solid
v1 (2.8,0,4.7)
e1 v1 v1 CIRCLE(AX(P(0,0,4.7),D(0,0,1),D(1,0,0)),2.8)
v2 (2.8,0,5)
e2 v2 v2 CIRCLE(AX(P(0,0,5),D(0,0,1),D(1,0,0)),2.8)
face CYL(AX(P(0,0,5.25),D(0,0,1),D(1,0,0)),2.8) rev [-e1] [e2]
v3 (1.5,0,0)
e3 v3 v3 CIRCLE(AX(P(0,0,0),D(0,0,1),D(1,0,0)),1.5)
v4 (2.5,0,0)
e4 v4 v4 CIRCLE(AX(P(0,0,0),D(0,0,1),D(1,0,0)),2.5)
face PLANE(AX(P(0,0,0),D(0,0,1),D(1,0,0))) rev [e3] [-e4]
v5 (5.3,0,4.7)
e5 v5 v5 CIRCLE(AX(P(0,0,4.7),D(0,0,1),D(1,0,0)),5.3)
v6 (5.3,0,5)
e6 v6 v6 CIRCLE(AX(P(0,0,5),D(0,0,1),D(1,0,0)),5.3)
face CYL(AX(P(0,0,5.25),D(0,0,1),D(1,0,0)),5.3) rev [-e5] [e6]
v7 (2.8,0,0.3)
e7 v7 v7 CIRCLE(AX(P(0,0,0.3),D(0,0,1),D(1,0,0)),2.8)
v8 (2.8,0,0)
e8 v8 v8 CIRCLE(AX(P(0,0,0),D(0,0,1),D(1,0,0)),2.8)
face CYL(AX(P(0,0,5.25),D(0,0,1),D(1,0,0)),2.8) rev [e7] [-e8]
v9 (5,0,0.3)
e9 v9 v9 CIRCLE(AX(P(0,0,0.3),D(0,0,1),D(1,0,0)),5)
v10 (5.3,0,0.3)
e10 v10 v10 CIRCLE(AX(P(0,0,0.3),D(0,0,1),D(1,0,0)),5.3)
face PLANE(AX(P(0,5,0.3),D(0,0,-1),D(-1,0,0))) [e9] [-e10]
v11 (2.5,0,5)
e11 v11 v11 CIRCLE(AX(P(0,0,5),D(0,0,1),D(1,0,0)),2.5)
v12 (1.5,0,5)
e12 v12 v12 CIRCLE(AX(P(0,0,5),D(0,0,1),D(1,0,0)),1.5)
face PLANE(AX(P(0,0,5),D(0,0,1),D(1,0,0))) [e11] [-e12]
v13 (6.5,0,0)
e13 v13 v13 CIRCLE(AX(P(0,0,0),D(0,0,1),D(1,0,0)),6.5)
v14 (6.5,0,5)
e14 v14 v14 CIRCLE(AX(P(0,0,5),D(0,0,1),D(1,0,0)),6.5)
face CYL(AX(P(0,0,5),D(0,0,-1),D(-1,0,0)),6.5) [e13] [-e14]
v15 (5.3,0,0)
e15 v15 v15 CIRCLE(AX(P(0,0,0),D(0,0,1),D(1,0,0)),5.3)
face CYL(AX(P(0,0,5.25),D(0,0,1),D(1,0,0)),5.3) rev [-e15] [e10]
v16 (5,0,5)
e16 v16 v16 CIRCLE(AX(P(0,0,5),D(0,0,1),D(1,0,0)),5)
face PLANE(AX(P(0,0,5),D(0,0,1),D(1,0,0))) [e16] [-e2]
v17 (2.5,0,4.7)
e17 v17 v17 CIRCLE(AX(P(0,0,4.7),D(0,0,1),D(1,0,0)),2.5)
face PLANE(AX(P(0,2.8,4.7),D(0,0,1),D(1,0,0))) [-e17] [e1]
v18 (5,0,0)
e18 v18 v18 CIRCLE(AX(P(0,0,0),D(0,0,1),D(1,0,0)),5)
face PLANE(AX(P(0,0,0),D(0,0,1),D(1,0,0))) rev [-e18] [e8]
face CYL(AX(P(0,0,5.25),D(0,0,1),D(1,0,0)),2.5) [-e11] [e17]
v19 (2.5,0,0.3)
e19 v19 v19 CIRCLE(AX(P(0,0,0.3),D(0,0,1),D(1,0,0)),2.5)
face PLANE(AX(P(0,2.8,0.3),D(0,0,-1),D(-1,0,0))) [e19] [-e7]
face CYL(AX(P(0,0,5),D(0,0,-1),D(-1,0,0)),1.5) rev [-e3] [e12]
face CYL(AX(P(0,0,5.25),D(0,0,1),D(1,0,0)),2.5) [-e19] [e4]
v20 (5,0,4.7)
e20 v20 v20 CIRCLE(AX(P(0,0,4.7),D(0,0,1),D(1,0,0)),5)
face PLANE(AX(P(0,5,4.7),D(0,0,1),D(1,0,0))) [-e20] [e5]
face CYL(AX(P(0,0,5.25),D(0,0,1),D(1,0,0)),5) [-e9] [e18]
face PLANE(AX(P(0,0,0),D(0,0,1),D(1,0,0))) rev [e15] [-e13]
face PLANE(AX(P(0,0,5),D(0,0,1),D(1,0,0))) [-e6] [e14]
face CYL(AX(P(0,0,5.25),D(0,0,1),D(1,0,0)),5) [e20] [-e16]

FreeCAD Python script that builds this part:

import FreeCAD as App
import Part
import Sketcher
from FreeCAD import Vector


def add_polygon(sketch, points):
    """Adds a closed chain of lines whose ends are joined by coincident constraints."""
    first, n = sketch.GeometryCount, len(points)
    for a, b in zip(points, points[1:] + points[:1]):
        sketch.addGeometry(Part.LineSegment(App.Vector(*a, 0), App.Vector(*b, 0)), False)
    for i in range(n):
        sketch.addConstraint(Sketcher.Constraint("Coincident", first + i, 2, first + (i + 1) % n, 1))

doc = App.newDocument("Part")
body = doc.addObject("PartDesign::Body", "Body")

sketch1 = body.newObject("Sketcher::SketchObject", "Sketch")
sketch1.AttachmentSupport = (doc.getObject("XY_Plane"), [""])
sketch1.MapMode = "FlatFace"
sketch1.addGeometry(Part.Circle(Vector(0, 0, 0), Vector(0, 0, 1), 6.5), False)
sketch1.addGeometry(Part.Circle(Vector(0, 0, 0), Vector(0, 0, 1), 1.5), False)
sketch1.addConstraint(Sketcher.Constraint("Coincident", 0, 3, -1, 1))
sketch1.addConstraint(Sketcher.Constraint("Coincident", 1, 3, -1, 1))
sketch1.addConstraint(Sketcher.Constraint("Diameter", 0, 13.0))
sketch1.addConstraint(Sketcher.Constraint("Diameter", 1, 3.0))
pad1 = body.newObject("PartDesign::Pad", "Pad")
pad1.Profile = sketch1
pad1.Length = 5

sketch2 = body.newObject("Sketcher::SketchObject", "Sketch001")
sketch2.AttachmentSupport = (doc.getObject("YZ_Plane"), [""])
sketch2.MapMode = "FlatFace"
add_polygon(sketch2, [(2.8, 5), (2.5, 5), (2.5, 4.7), (2.8, 4.7)])
add_polygon(sketch2, [(2.8, 0.3), (2.5, 0.3), (2.5, 0), (2.8, 0)])
add_polygon(sketch2, [(5.3, 5), (5, 5), (5, 4.7), (5.3, 4.7)])
add_polygon(sketch2, [(5.3, 0.3), (5, 0.3), (5, 0), (5.3, 0)])
sketch2.addConstraint(Sketcher.Constraint("Horizontal", 0))
sketch2.addConstraint(Sketcher.Constraint("Vertical", 1))
sketch2.addConstraint(Sketcher.Constraint("Horizontal", 2))
sketch2.addConstraint(Sketcher.Constraint("Vertical", 3))
sketch2.addConstraint(Sketcher.Constraint("Horizontal", 4))
sketch2.addConstraint(Sketcher.Constraint("Vertical", 5))
sketch2.addConstraint(Sketcher.Constraint("Horizontal", 6))
sketch2.addConstraint(Sketcher.Constraint("Vertical", 7))
sketch2.addConstraint(Sketcher.Constraint("Horizontal", 8))
sketch2.addConstraint(Sketcher.Constraint("Vertical", 9))
sketch2.addConstraint(Sketcher.Constraint("Horizontal", 10))
sketch2.addConstraint(Sketcher.Constraint("Vertical", 11))
sketch2.addConstraint(Sketcher.Constraint("Horizontal", 12))
sketch2.addConstraint(Sketcher.Constraint("Vertical", 13))
sketch2.addConstraint(Sketcher.Constraint("Horizontal", 14))
sketch2.addConstraint(Sketcher.Constraint("Vertical", 15))
sketch2.addConstraint(Sketcher.Constraint("PointOnObject", 5, 2, -1))
sketch2.addConstraint(Sketcher.Constraint("PointOnObject", 13, 2, -1))
sketch2.addConstraint(Sketcher.Constraint("Horizontal", 3, 2, 8, 2))
sketch2.addConstraint(Sketcher.Constraint("Horizontal", 2, 2, 9, 2))
sketch2.addConstraint(Sketcher.Constraint("Horizontal", 7, 2, 12, 2))
sketch2.addConstraint(Sketcher.Constraint("Vertical", 1, 2, 4, 2))
sketch2.addConstraint(Sketcher.Constraint("Vertical", 3, 2, 6, 2))
sketch2.addConstraint(Sketcher.Constraint("Vertical", 9, 2, 12, 2))
sketch2.addConstraint(Sketcher.Constraint("Vertical", 11, 2, 14, 2))
sketch2.addConstraint(Sketcher.Constraint("Equal", 6, 8))
sketch2.addConstraint(Sketcher.Constraint("Equal", 14, 1))
sketch2.addConstraint(Sketcher.Constraint("Equal", 3, 5))
sketch2.addConstraint(Sketcher.Constraint("DistanceX", 0, 2, 0, 1, 0.3))
sketch2.addConstraint(Sketcher.Constraint("DistanceY", -1, 1, 0, 2, 5.0))
sketch2.addConstraint(Sketcher.Constraint("DistanceX", -1, 1, 8, 2, 5.0))
sketch2.addConstraint(Sketcher.Constraint("DistanceX", -1, 1, 0, 2, 2.5))
groove = body.newObject("PartDesign::Groove", "Groove")
groove.Profile = sketch2
groove.ReferenceAxis = (sketch2, ["V_Axis"])
groove.Angle = 360

doc.recompute()
